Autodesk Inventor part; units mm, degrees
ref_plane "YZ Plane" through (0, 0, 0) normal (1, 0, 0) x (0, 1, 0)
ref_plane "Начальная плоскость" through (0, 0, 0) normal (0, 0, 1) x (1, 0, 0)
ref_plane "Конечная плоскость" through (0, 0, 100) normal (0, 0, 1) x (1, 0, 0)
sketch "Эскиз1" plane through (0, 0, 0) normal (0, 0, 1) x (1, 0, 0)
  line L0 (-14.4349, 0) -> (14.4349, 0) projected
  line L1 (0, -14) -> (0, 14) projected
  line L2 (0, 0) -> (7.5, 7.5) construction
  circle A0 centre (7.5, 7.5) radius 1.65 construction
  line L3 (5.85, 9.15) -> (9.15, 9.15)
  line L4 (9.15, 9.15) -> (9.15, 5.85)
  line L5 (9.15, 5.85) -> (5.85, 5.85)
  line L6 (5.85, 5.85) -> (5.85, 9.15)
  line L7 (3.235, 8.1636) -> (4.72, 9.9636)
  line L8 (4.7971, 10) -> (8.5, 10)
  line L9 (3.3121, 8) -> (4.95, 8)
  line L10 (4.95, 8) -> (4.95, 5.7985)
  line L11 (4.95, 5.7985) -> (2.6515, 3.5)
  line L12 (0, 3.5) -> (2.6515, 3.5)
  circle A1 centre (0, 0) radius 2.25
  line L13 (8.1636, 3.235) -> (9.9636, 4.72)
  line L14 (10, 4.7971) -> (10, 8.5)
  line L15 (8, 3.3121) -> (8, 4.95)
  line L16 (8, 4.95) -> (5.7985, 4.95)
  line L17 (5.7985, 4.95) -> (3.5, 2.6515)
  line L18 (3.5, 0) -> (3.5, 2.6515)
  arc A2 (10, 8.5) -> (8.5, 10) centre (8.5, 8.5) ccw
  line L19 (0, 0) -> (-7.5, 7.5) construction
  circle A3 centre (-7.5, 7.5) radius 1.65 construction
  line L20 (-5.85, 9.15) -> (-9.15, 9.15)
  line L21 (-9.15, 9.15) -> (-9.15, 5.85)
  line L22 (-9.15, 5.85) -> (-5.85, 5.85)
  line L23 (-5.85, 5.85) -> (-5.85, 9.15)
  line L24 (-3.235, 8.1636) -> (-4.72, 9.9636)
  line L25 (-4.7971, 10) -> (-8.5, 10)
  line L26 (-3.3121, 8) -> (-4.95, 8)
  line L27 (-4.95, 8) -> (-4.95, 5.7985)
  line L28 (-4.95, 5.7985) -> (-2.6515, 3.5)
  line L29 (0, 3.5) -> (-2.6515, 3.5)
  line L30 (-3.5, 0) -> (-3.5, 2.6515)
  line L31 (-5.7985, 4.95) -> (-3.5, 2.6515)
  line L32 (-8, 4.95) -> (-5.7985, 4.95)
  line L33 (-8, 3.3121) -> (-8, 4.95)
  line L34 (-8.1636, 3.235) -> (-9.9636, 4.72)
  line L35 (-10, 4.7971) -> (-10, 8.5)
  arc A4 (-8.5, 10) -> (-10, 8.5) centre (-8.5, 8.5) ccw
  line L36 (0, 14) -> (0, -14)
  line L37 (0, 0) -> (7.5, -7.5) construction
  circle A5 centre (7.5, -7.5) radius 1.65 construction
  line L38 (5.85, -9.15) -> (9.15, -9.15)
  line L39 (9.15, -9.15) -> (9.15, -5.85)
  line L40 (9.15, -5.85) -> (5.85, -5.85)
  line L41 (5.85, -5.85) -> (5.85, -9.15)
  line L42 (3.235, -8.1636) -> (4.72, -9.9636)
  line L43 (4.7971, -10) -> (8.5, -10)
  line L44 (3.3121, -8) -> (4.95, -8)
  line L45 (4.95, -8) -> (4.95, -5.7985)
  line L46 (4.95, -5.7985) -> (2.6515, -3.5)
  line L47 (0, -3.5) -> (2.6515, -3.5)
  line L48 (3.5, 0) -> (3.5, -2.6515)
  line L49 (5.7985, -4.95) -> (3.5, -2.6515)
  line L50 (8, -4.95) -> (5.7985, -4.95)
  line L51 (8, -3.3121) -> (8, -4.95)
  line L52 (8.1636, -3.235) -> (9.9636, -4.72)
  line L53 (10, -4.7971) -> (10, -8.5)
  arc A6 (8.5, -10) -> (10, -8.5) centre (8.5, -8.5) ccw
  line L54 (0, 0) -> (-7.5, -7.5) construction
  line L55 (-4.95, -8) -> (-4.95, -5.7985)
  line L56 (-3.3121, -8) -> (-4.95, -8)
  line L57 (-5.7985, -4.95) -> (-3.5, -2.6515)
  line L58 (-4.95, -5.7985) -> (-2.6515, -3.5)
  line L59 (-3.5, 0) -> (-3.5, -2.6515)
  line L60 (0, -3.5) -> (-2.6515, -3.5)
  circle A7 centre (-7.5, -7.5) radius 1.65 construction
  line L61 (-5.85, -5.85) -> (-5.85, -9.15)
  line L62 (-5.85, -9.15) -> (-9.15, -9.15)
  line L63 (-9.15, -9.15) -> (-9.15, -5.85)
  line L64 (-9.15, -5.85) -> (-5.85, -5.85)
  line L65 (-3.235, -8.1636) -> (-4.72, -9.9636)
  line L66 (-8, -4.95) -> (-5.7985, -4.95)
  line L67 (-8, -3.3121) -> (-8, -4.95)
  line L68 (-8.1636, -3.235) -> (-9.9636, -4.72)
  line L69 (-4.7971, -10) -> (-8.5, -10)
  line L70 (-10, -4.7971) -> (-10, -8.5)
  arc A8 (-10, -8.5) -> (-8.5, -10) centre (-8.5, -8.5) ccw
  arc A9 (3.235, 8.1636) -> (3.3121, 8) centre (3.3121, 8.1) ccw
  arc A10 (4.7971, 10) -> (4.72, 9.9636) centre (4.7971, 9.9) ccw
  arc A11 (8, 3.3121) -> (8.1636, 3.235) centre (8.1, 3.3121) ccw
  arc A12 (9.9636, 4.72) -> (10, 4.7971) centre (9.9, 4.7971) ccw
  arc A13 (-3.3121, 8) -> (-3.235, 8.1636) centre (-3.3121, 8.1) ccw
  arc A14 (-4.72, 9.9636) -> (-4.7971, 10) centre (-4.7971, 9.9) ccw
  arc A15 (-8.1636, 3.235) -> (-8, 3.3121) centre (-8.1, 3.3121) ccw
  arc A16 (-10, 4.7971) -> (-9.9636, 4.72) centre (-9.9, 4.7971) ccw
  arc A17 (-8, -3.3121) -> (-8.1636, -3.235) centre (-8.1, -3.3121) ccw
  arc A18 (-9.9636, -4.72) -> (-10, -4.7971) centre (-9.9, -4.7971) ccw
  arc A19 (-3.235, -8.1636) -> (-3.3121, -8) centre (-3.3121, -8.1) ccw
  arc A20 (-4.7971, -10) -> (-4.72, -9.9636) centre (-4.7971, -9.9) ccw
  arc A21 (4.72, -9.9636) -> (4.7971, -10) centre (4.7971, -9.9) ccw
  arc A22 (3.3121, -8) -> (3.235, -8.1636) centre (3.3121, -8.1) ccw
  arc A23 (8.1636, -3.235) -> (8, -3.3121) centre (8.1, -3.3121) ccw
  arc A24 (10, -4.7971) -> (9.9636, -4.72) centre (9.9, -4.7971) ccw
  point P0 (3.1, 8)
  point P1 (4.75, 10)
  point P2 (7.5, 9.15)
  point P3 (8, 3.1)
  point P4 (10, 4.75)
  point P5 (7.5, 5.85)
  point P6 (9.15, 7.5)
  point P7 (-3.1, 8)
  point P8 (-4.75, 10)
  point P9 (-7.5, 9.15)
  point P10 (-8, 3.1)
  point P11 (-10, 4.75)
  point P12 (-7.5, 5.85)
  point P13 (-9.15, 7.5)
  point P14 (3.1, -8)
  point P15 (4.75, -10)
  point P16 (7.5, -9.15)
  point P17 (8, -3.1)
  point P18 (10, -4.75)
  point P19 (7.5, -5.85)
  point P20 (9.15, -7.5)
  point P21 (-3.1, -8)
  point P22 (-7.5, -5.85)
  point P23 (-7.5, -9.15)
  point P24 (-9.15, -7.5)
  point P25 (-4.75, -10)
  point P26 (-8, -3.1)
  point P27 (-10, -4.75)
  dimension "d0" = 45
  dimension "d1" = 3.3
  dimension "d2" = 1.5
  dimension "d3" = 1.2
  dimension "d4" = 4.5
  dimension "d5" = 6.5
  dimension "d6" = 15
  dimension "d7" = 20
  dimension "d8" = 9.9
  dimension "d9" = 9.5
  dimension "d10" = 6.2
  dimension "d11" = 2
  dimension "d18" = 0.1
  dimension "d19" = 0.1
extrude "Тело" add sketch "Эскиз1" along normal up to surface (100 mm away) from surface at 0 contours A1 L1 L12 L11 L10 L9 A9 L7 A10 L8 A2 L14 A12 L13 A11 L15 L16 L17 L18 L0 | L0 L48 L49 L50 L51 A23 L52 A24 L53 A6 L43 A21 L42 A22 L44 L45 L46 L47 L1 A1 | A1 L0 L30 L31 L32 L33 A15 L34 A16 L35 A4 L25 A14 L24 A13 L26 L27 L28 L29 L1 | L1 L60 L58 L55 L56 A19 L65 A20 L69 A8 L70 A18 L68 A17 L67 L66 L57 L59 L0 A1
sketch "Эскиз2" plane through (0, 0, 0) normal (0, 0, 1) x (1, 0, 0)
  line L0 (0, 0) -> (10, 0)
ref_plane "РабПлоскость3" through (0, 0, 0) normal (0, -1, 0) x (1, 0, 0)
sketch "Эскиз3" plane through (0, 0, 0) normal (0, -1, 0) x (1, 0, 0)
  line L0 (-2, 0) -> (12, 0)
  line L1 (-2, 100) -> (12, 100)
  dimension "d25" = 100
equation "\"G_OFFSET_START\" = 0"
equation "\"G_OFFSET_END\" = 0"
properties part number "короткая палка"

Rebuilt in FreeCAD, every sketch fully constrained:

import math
import FreeCAD as App
import Part
import Sketcher

V = App.Vector
Q = App.Units.Quantity


def add_polygon(sketch, points):
    """Adds a closed chain of lines whose ends are joined by coincident constraints."""
    first, n = sketch.GeometryCount, len(points)
    for a, b in zip(points, points[1:] + points[:1]):
        sketch.addGeometry(Part.LineSegment(App.Vector(*a, 0), App.Vector(*b, 0)), False)
    for i in range(n):
        sketch.addConstraint(Sketcher.Constraint("Coincident", first + i, 2, first + (i + 1) % n, 1))

doc = App.newDocument("Part")
body = doc.addObject("PartDesign::Body", "Body")

sketch1 = doc.addObject("Sketcher::SketchObject", "Sketch")
body.addObject(sketch1)
sketch1.AttachmentSupport = (doc.XY_Plane, [""])
sketch1.MapMode = "FlatFace"
sketch1.addGeometry(Part.LineSegment(V(2.65, 3.5, 0), V(-2.65, 3.5, 0)), False)
sketch1.addGeometry(Part.LineSegment(V(-2.65, 3.5, 0), V(-4.95, 5.8, 0)), False)
sketch1.addGeometry(Part.LineSegment(V(-4.95, 5.8, 0), V(-4.95, 8, 0)), False)
sketch1.addGeometry(Part.LineSegment(V(-4.95, 8, 0), V(-3.31, 8, 0)), False)
sketch1.addGeometry(Part.ArcOfCircle(Part.Circle(V(-3.31, 8.1, 0), V(0, 0, 1), 0.1), math.radians(-90), math.radians(40)), False)
sketch1.addGeometry(Part.LineSegment(V(-3.23, 8.16, 0), V(-4.72, 9.96, 0)), False)
sketch1.addGeometry(Part.ArcOfCircle(Part.Circle(V(-4.8, 9.9, 0), V(0, 0, 1), 0.1), math.radians(40), math.radians(90)), False)
sketch1.addGeometry(Part.LineSegment(V(-4.8, 10, 0), V(-8.5, 10, 0)), False)
sketch1.addGeometry(Part.ArcOfCircle(Part.Circle(V(-8.5, 8.5, 0), V(0, 0, 1), 1.5), math.radians(90), math.radians(180)), False)
sketch1.addGeometry(Part.LineSegment(V(-10, 8.5, 0), V(-10, 4.8, 0)), False)
sketch1.addGeometry(Part.ArcOfCircle(Part.Circle(V(-9.9, 4.8, 0), V(0, 0, 1), 0.1), math.radians(180), math.radians(230)), False)
sketch1.addGeometry(Part.LineSegment(V(-9.96, 4.72, 0), V(-8.16, 3.23, 0)), False)
sketch1.addGeometry(Part.ArcOfCircle(Part.Circle(V(-8.1, 3.31, 0), V(0, 0, 1), 0.1), math.radians(-130), math.radians(0)), False)
sketch1.addGeometry(Part.LineSegment(V(-8, 3.31, 0), V(-8, 4.95, 0)), False)
sketch1.addGeometry(Part.LineSegment(V(-8, 4.95, 0), V(-5.8, 4.95, 0)), False)
sketch1.addGeometry(Part.LineSegment(V(-5.8, 4.95, 0), V(-3.5, 2.65, 0)), False)
sketch1.addGeometry(Part.LineSegment(V(-3.5, 2.65, 0), V(-3.5, -2.65, 0)), False)
sketch1.addGeometry(Part.LineSegment(V(-3.5, -2.65, 0), V(-5.8, -4.95, 0)), False)
sketch1.addGeometry(Part.LineSegment(V(-5.8, -4.95, 0), V(-8, -4.95, 0)), False)
sketch1.addGeometry(Part.LineSegment(V(-8, -4.95, 0), V(-8, -3.31, 0)), False)
sketch1.addGeometry(Part.ArcOfCircle(Part.Circle(V(-8.1, -3.31, 0), V(0, 0, 1), 0.1), math.radians(0), math.radians(130)), False)
sketch1.addGeometry(Part.LineSegment(V(-8.16, -3.23, 0), V(-9.96, -4.72, 0)), False)
sketch1.addGeometry(Part.ArcOfCircle(Part.Circle(V(-9.9, -4.8, 0), V(0, 0, 1), 0.1), math.radians(130), math.radians(180)), False)
sketch1.addGeometry(Part.LineSegment(V(-10, -4.8, 0), V(-10, -8.5, 0)), False)
sketch1.addGeometry(Part.ArcOfCircle(Part.Circle(V(-8.5, -8.5, 0), V(0, 0, 1), 1.5), math.radians(180), math.radians(270)), False)
sketch1.addGeometry(Part.LineSegment(V(-8.5, -10, 0), V(-4.8, -10, 0)), False)
sketch1.addGeometry(Part.ArcOfCircle(Part.Circle(V(-4.8, -9.9, 0), V(0, 0, 1), 0.1), math.radians(-90), math.radians(-40)), False)
sketch1.addGeometry(Part.LineSegment(V(-4.72, -9.96, 0), V(-3.23, -8.16, 0)), False)
sketch1.addGeometry(Part.ArcOfCircle(Part.Circle(V(-3.31, -8.1, 0), V(0, 0, 1), 0.1), math.radians(-40), math.radians(90)), False)
sketch1.addGeometry(Part.LineSegment(V(-3.31, -8, 0), V(-4.95, -8, 0)), False)
sketch1.addGeometry(Part.LineSegment(V(-4.95, -8, 0), V(-4.95, -5.8, 0)), False)
sketch1.addGeometry(Part.LineSegment(V(-4.95, -5.8, 0), V(-2.65, -3.5, 0)), False)
sketch1.addGeometry(Part.LineSegment(V(-2.65, -3.5, 0), V(2.65, -3.5, 0)), False)
sketch1.addGeometry(Part.LineSegment(V(2.65, -3.5, 0), V(4.95, -5.8, 0)), False)
sketch1.addGeometry(Part.LineSegment(V(4.95, -5.8, 0), V(4.95, -8, 0)), False)
sketch1.addGeometry(Part.LineSegment(V(4.95, -8, 0), V(3.31, -8, 0)), False)
sketch1.addGeometry(Part.ArcOfCircle(Part.Circle(V(3.31, -8.1, 0), V(0, 0, 1), 0.1), math.radians(90), math.radians(220)), False)
sketch1.addGeometry(Part.LineSegment(V(3.23, -8.16, 0), V(4.72, -9.96, 0)), False)
sketch1.addGeometry(Part.ArcOfCircle(Part.Circle(V(4.8, -9.9, 0), V(0, 0, 1), 0.1), math.radians(-140), math.radians(-90)), False)
sketch1.addGeometry(Part.LineSegment(V(4.8, -10, 0), V(8.5, -10, 0)), False)
sketch1.addGeometry(Part.ArcOfCircle(Part.Circle(V(8.5, -8.5, 0), V(0, 0, 1), 1.5), math.radians(-90), math.radians(0)), False)
sketch1.addGeometry(Part.LineSegment(V(10, -8.5, 0), V(10, -4.8, 0)), False)
sketch1.addGeometry(Part.ArcOfCircle(Part.Circle(V(9.9, -4.8, 0), V(0, 0, 1), 0.1), math.radians(0), math.radians(50)), False)
sketch1.addGeometry(Part.LineSegment(V(9.96, -4.72, 0), V(8.16, -3.23, 0)), False)
sketch1.addGeometry(Part.ArcOfCircle(Part.Circle(V(8.1, -3.31, 0), V(0, 0, 1), 0.1), math.radians(50), math.radians(180)), False)
sketch1.addGeometry(Part.LineSegment(V(8, -3.31, 0), V(8, -4.95, 0)), False)
sketch1.addGeometry(Part.LineSegment(V(8, -4.95, 0), V(5.8, -4.95, 0)), False)
sketch1.addGeometry(Part.LineSegment(V(5.8, -4.95, 0), V(3.5, -2.65, 0)), False)
sketch1.addGeometry(Part.LineSegment(V(3.5, -2.65, 0), V(3.5, 2.65, 0)), False)
sketch1.addGeometry(Part.LineSegment(V(3.5, 2.65, 0), V(5.8, 4.95, 0)), False)
sketch1.addGeometry(Part.LineSegment(V(5.8, 4.95, 0), V(8, 4.95, 0)), False)
sketch1.addGeometry(Part.LineSegment(V(8, 4.95, 0), V(8, 3.31, 0)), False)
sketch1.addGeometry(Part.ArcOfCircle(Part.Circle(V(8.1, 3.31, 0), V(0, 0, 1), 0.1), math.radians(180), math.radians(310)), False)
sketch1.addGeometry(Part.LineSegment(V(8.16, 3.23, 0), V(9.96, 4.72, 0)), False)
sketch1.addGeometry(Part.ArcOfCircle(Part.Circle(V(9.9, 4.8, 0), V(0, 0, 1), 0.1), math.radians(-50), math.radians(0)), False)
sketch1.addGeometry(Part.LineSegment(V(10, 4.8, 0), V(10, 8.5, 0)), False)
sketch1.addGeometry(Part.ArcOfCircle(Part.Circle(V(8.5, 8.5, 0), V(0, 0, 1), 1.5), math.radians(0), math.radians(90)), False)
sketch1.addGeometry(Part.LineSegment(V(8.5, 10, 0), V(4.8, 10, 0)), False)
sketch1.addGeometry(Part.ArcOfCircle(Part.Circle(V(4.8, 9.9, 0), V(0, 0, 1), 0.1), math.radians(90), math.radians(140)), False)
sketch1.addGeometry(Part.LineSegment(V(4.72, 9.96, 0), V(3.23, 8.16, 0)), False)
sketch1.addGeometry(Part.ArcOfCircle(Part.Circle(V(3.31, 8.1, 0), V(0, 0, 1), 0.1), math.radians(140), math.radians(270)), False)
sketch1.addGeometry(Part.LineSegment(V(3.31, 8, 0), V(4.95, 8, 0)), False)
sketch1.addGeometry(Part.LineSegment(V(4.95, 8, 0), V(4.95, 5.8, 0)), False)
sketch1.addGeometry(Part.LineSegment(V(4.95, 5.8, 0), V(2.65, 3.5, 0)), False)
sketch1.addGeometry(Part.Circle(V(0, 0, 0), V(0, 0, 1), 2.25), False)
add_polygon(sketch1, [(5.85, 5.85), (5.85, 9.15), (9.15, 9.15), (9.15, 5.85)])
add_polygon(sketch1, [(-5.85, 9.15), (-5.85, 5.85), (-9.15, 5.85), (-9.15, 9.15)])
add_polygon(sketch1, [(5.85, -9.15), (5.85, -5.85), (9.15, -5.85), (9.15, -9.15)])
add_polygon(sketch1, [(-5.85, -9.15), (-9.15, -9.15), (-9.15, -5.85), (-5.85, -5.85)])
sketch1.addConstraint([
    Sketcher.Constraint("Coincident", 0, 2, 1, 1),
    Sketcher.Constraint("Coincident", 1, 2, 2, 1),
    Sketcher.Constraint("Coincident", 2, 2, 3, 1),
    Sketcher.Constraint("Tangent", 3, 2, 4, 1),
    Sketcher.Constraint("Tangent", 4, 2, 5, 1),
    Sketcher.Constraint("Tangent", 5, 2, 6, 1),
    Sketcher.Constraint("Tangent", 6, 2, 7, 1),
    Sketcher.Constraint("Tangent", 7, 2, 8, 1),
    Sketcher.Constraint("Tangent", 8, 2, 9, 1),
    Sketcher.Constraint("Tangent", 9, 2, 10, 1),
    Sketcher.Constraint("Tangent", 10, 2, 11, 1),
    Sketcher.Constraint("Tangent", 11, 2, 12, 1),
    Sketcher.Constraint("Tangent", 12, 2, 13, 1),
    Sketcher.Constraint("Coincident", 13, 2, 14, 1),
    Sketcher.Constraint("Coincident", 14, 2, 15, 1),
    Sketcher.Constraint("Coincident", 15, 2, 16, 1),
    Sketcher.Constraint("Coincident", 16, 2, 17, 1),
    Sketcher.Constraint("Coincident", 17, 2, 18, 1),
    Sketcher.Constraint("Coincident", 18, 2, 19, 1),
    Sketcher.Constraint("Tangent", 19, 2, 20, 1),
    Sketcher.Constraint("Tangent", 20, 2, 21, 1),
    Sketcher.Constraint("Tangent", 21, 2, 22, 1),
    Sketcher.Constraint("Tangent", 22, 2, 23, 1),
    Sketcher.Constraint("Tangent", 23, 2, 24, 1),
    Sketcher.Constraint("Tangent", 24, 2, 25, 1),
    Sketcher.Constraint("Tangent", 25, 2, 26, 1),
    Sketcher.Constraint("Tangent", 26, 2, 27, 1),
    Sketcher.Constraint("Tangent", 27, 2, 28, 1),
    Sketcher.Constraint("Tangent", 28, 2, 29, 1),
    Sketcher.Constraint("Coincident", 29, 2, 30, 1),
    Sketcher.Constraint("Coincident", 30, 2, 31, 1),
    Sketcher.Constraint("Coincident", 31, 2, 32, 1),
    Sketcher.Constraint("Coincident", 32, 2, 33, 1),
    Sketcher.Constraint("Coincident", 33, 2, 34, 1),
    Sketcher.Constraint("Coincident", 34, 2, 35, 1),
    Sketcher.Constraint("Tangent", 35, 2, 36, 1),
    Sketcher.Constraint("Tangent", 36, 2, 37, 1),
    Sketcher.Constraint("Tangent", 37, 2, 38, 1),
    Sketcher.Constraint("Tangent", 38, 2, 39, 1),
    Sketcher.Constraint("Tangent", 39, 2, 40, 1),
    Sketcher.Constraint("Tangent", 40, 2, 41, 1),
    Sketcher.Constraint("Tangent", 41, 2, 42, 1),
    Sketcher.Constraint("Tangent", 42, 2, 43, 1),
    Sketcher.Constraint("Tangent", 43, 2, 44, 1),
    Sketcher.Constraint("Tangent", 44, 2, 45, 1),
    Sketcher.Constraint("Coincident", 45, 2, 46, 1),
    Sketcher.Constraint("Coincident", 46, 2, 47, 1),
    Sketcher.Constraint("Coincident", 47, 2, 48, 1),
    Sketcher.Constraint("Coincident", 48, 2, 49, 1),
    Sketcher.Constraint("Coincident", 49, 2, 50, 1),
    Sketcher.Constraint("Coincident", 50, 2, 51, 1),
    Sketcher.Constraint("Tangent", 51, 2, 52, 1),
    Sketcher.Constraint("Tangent", 52, 2, 53, 1),
    Sketcher.Constraint("Tangent", 53, 2, 54, 1),
    Sketcher.Constraint("Tangent", 54, 2, 55, 1),
    Sketcher.Constraint("Tangent", 55, 2, 56, 1),
    Sketcher.Constraint("Tangent", 56, 2, 57, 1),
    Sketcher.Constraint("Tangent", 57, 2, 58, 1),
    Sketcher.Constraint("Tangent", 58, 2, 59, 1),
    Sketcher.Constraint("Tangent", 59, 2, 60, 1),
    Sketcher.Constraint("Tangent", 60, 2, 61, 1),
    Sketcher.Constraint("Coincident", 61, 2, 62, 1),
    Sketcher.Constraint("Coincident", 62, 2, 63, 1),
    Sketcher.Constraint("Coincident", 63, 2, 0, 1),
    Sketcher.Constraint("Horizontal", 0),
    Sketcher.Constraint("Vertical", 2),
    Sketcher.Constraint("Horizontal", 3),
    Sketcher.Constraint("Horizontal", 7),
    Sketcher.Constraint("Vertical", 9),
    Sketcher.Constraint("Vertical", 13),
    Sketcher.Constraint("Horizontal", 14),
    Sketcher.Constraint("Vertical", 16),
    Sketcher.Constraint("Horizontal", 18),
    Sketcher.Constraint("Vertical", 19),
    Sketcher.Constraint("Vertical", 23),
    Sketcher.Constraint("Horizontal", 25),
    Sketcher.Constraint("Horizontal", 29),
    Sketcher.Constraint("Vertical", 30),
    Sketcher.Constraint("Horizontal", 32),
    Sketcher.Constraint("Vertical", 34),
    Sketcher.Constraint("Horizontal", 35),
    Sketcher.Constraint("Horizontal", 39),
    Sketcher.Constraint("Vertical", 41),
    Sketcher.Constraint("Vertical", 45),
    Sketcher.Constraint("Horizontal", 46),
    Sketcher.Constraint("Vertical", 48),
    Sketcher.Constraint("Horizontal", 50),
    Sketcher.Constraint("Vertical", 51),
    Sketcher.Constraint("Vertical", 55),
    Sketcher.Constraint("Horizontal", 57),
    Sketcher.Constraint("Horizontal", 61),
    Sketcher.Constraint("Vertical", 62),
    Sketcher.Constraint("Vertical", 65),
    Sketcher.Constraint("Horizontal", 66),
    Sketcher.Constraint("Vertical", 67),
    Sketcher.Constraint("Horizontal", 68),
    Sketcher.Constraint("Vertical", 69),
    Sketcher.Constraint("Horizontal", 70),
    Sketcher.Constraint("Vertical", 71),
    Sketcher.Constraint("Horizontal", 72),
    Sketcher.Constraint("Vertical", 73),
    Sketcher.Constraint("Horizontal", 74),
    Sketcher.Constraint("Vertical", 75),
    Sketcher.Constraint("Horizontal", 76),
    Sketcher.Constraint("Horizontal", 77),
    Sketcher.Constraint("Vertical", 78),
    Sketcher.Constraint("Horizontal", 79),
    Sketcher.Constraint("Vertical", 80),
    Sketcher.Constraint("Coincident", 64, 3, -1, 1),
    Sketcher.Constraint("Equal", 4, 6),
    Sketcher.Constraint("Equal", 6, 10),
    Sketcher.Constraint("Equal", 10, 12),
    Sketcher.Constraint("Equal", 12, 20),
    Sketcher.Constraint("Equal", 20, 22),
    Sketcher.Constraint("Equal", 8, 24),
    Sketcher.Constraint("Equal", 22, 26),
    Sketcher.Constraint("Equal", 26, 28),
    Sketcher.Constraint("Equal", 28, 36),
    Sketcher.Constraint("Equal", 36, 38),
    Sketcher.Constraint("Equal", 24, 40),
    Sketcher.Constraint("Equal", 38, 42),
    Sketcher.Constraint("Equal", 42, 44),
    Sketcher.Constraint("Equal", 44, 52),
    Sketcher.Constraint("Equal", 52, 54),
    Sketcher.Constraint("Equal", 40, 56),
    Sketcher.Constraint("Equal", 54, 58),
    Sketcher.Constraint("Equal", 58, 60),
    Sketcher.Constraint("Symmetric", 4, 3, 36, 3, -1, 1),
    Sketcher.Constraint("Symmetric", 6, 3, 38, 3, -1, 1),
    Sketcher.Constraint("Symmetric", 10, 3, 42, 3, -1, 1),
    Sketcher.Constraint("Symmetric", 12, 3, 44, 3, -1, 1),
    Sketcher.Constraint("Symmetric", 20, 3, 52, 3, -1, 1),
    Sketcher.Constraint("Symmetric", 22, 3, 54, 3, -1, 1),
    Sketcher.Constraint("Symmetric", 26, 3, 58, 3, -1, 1),
    Sketcher.Constraint("Symmetric", 28, 3, 60, 3, -1, 1),
    Sketcher.Constraint("Symmetric", 0, 2, 32, 2, -1, 1),
    Sketcher.Constraint("Symmetric", 1, 2, 33, 2, -1, 1),
    Sketcher.Constraint("Symmetric", 14, 2, 46, 2, -1, 1),
    Sketcher.Constraint("Symmetric", 15, 2, 47, 2, -1, 1),
    Sketcher.Constraint("Symmetric", 17, 2, 49, 2, -1, 1),
    Sketcher.Constraint("Symmetric", 30, 2, 62, 2, -1, 1),
    Sketcher.Constraint("Symmetric", 69, 2, 73, 2, -1, 1),
    Sketcher.Constraint("Symmetric", 71, 2, 75, 2, -1, 1),
    Sketcher.Constraint("Symmetric", 66, 2, 77, 2, -1, 1),
    Sketcher.Constraint("Symmetric", 68, 2, 79, 2, -1, 1),
    Sketcher.Constraint("Symmetric", 28, 3, 36, 3, -2),
    Sketcher.Constraint("Symmetric", 26, 3, 38, 3, -2),
    Sketcher.Constraint("Symmetric", 22, 3, 42, 3, -2),
    Sketcher.Constraint("Symmetric", 20, 3, 44, 3, -2),
    Sketcher.Constraint("Symmetric", 30, 2, 33, 2, -2),
    Sketcher.Constraint("Symmetric", 17, 2, 46, 2, -2),
    Sketcher.Constraint("Symmetric", 68, 2, 69, 2, -2),
    Sketcher.Constraint("Symmetric", 66, 2, 71, 2, -2),
    Sketcher.Constraint("Parallel", 1, 15),
    Sketcher.Constraint("Perpendicular", 15, 17),
    Sketcher.Constraint("Perpendicular", 5, 21),
    Sketcher.Constraint("Parallel", 17, 31),
    Sketcher.Constraint("Perpendicular", 47, 49),
    Sketcher.Constraint("Parallel", 49, 63),
    Sketcher.Constraint("Horizontal", 16, 2, 47, 2),
    Sketcher.Constraint("Equal", 50, 2),
    Sketcher.Constraint("Equal", 57, 9),
    Sketcher.Constraint("Equal", 61, 13),
    Sketcher.Constraint("Equal", 32, 16),
    Sketcher.Constraint("Equal", 79, 65),
    Sketcher.Constraint("Equal", 5, 11),
    Sketcher.Constraint("Equal", 1, 15),
    Sketcher.Constraint("Diameter", 64, Q("4.5 mm")),
    Sketcher.Constraint("Radius", 4, Q("0.1 mm")),
    Sketcher.Constraint("Radius", 8, Q("1.5 mm")),
    Sketcher.Constraint("DistanceX", 66, 1, 66, 2, Q("3.3 mm")),
    Sketcher.Constraint("DistanceY", -1, 1, 6, 3, Q("9.9 mm")),
    Sketcher.Constraint("DistanceY", -1, 1, 2, 2, Q("8 mm")),
    Sketcher.Constraint("DistanceY", -1, 1, 0, 2, Q("3.5 mm")),
    Sketcher.Constraint("DistanceX", 0, 2, 0, 1, Q("5.303 mm")),
    Sketcher.Constraint("DistanceX", 3, 1, 3, 2, Q("1.638 mm")),
    Sketcher.Constraint("DistanceX", 7, 2, 7, 1, Q("3.703 mm")),
    Sketcher.Constraint("DistanceX", 1, 2, -1, 1, Q("4.95 mm")),
    Sketcher.Constraint("DistanceX", -1, 1, 65, 2, Q("5.85 mm")),
    Sketcher.Constraint("DistanceY", -1, 1, 65, 2, Q("9.15 mm")),
])
pad1 = doc.addObject("PartDesign::Pad", "Pad")
body.addObject(pad1)
pad1.Profile = sketch1
pad1.Length = 100

doc.recompute()
